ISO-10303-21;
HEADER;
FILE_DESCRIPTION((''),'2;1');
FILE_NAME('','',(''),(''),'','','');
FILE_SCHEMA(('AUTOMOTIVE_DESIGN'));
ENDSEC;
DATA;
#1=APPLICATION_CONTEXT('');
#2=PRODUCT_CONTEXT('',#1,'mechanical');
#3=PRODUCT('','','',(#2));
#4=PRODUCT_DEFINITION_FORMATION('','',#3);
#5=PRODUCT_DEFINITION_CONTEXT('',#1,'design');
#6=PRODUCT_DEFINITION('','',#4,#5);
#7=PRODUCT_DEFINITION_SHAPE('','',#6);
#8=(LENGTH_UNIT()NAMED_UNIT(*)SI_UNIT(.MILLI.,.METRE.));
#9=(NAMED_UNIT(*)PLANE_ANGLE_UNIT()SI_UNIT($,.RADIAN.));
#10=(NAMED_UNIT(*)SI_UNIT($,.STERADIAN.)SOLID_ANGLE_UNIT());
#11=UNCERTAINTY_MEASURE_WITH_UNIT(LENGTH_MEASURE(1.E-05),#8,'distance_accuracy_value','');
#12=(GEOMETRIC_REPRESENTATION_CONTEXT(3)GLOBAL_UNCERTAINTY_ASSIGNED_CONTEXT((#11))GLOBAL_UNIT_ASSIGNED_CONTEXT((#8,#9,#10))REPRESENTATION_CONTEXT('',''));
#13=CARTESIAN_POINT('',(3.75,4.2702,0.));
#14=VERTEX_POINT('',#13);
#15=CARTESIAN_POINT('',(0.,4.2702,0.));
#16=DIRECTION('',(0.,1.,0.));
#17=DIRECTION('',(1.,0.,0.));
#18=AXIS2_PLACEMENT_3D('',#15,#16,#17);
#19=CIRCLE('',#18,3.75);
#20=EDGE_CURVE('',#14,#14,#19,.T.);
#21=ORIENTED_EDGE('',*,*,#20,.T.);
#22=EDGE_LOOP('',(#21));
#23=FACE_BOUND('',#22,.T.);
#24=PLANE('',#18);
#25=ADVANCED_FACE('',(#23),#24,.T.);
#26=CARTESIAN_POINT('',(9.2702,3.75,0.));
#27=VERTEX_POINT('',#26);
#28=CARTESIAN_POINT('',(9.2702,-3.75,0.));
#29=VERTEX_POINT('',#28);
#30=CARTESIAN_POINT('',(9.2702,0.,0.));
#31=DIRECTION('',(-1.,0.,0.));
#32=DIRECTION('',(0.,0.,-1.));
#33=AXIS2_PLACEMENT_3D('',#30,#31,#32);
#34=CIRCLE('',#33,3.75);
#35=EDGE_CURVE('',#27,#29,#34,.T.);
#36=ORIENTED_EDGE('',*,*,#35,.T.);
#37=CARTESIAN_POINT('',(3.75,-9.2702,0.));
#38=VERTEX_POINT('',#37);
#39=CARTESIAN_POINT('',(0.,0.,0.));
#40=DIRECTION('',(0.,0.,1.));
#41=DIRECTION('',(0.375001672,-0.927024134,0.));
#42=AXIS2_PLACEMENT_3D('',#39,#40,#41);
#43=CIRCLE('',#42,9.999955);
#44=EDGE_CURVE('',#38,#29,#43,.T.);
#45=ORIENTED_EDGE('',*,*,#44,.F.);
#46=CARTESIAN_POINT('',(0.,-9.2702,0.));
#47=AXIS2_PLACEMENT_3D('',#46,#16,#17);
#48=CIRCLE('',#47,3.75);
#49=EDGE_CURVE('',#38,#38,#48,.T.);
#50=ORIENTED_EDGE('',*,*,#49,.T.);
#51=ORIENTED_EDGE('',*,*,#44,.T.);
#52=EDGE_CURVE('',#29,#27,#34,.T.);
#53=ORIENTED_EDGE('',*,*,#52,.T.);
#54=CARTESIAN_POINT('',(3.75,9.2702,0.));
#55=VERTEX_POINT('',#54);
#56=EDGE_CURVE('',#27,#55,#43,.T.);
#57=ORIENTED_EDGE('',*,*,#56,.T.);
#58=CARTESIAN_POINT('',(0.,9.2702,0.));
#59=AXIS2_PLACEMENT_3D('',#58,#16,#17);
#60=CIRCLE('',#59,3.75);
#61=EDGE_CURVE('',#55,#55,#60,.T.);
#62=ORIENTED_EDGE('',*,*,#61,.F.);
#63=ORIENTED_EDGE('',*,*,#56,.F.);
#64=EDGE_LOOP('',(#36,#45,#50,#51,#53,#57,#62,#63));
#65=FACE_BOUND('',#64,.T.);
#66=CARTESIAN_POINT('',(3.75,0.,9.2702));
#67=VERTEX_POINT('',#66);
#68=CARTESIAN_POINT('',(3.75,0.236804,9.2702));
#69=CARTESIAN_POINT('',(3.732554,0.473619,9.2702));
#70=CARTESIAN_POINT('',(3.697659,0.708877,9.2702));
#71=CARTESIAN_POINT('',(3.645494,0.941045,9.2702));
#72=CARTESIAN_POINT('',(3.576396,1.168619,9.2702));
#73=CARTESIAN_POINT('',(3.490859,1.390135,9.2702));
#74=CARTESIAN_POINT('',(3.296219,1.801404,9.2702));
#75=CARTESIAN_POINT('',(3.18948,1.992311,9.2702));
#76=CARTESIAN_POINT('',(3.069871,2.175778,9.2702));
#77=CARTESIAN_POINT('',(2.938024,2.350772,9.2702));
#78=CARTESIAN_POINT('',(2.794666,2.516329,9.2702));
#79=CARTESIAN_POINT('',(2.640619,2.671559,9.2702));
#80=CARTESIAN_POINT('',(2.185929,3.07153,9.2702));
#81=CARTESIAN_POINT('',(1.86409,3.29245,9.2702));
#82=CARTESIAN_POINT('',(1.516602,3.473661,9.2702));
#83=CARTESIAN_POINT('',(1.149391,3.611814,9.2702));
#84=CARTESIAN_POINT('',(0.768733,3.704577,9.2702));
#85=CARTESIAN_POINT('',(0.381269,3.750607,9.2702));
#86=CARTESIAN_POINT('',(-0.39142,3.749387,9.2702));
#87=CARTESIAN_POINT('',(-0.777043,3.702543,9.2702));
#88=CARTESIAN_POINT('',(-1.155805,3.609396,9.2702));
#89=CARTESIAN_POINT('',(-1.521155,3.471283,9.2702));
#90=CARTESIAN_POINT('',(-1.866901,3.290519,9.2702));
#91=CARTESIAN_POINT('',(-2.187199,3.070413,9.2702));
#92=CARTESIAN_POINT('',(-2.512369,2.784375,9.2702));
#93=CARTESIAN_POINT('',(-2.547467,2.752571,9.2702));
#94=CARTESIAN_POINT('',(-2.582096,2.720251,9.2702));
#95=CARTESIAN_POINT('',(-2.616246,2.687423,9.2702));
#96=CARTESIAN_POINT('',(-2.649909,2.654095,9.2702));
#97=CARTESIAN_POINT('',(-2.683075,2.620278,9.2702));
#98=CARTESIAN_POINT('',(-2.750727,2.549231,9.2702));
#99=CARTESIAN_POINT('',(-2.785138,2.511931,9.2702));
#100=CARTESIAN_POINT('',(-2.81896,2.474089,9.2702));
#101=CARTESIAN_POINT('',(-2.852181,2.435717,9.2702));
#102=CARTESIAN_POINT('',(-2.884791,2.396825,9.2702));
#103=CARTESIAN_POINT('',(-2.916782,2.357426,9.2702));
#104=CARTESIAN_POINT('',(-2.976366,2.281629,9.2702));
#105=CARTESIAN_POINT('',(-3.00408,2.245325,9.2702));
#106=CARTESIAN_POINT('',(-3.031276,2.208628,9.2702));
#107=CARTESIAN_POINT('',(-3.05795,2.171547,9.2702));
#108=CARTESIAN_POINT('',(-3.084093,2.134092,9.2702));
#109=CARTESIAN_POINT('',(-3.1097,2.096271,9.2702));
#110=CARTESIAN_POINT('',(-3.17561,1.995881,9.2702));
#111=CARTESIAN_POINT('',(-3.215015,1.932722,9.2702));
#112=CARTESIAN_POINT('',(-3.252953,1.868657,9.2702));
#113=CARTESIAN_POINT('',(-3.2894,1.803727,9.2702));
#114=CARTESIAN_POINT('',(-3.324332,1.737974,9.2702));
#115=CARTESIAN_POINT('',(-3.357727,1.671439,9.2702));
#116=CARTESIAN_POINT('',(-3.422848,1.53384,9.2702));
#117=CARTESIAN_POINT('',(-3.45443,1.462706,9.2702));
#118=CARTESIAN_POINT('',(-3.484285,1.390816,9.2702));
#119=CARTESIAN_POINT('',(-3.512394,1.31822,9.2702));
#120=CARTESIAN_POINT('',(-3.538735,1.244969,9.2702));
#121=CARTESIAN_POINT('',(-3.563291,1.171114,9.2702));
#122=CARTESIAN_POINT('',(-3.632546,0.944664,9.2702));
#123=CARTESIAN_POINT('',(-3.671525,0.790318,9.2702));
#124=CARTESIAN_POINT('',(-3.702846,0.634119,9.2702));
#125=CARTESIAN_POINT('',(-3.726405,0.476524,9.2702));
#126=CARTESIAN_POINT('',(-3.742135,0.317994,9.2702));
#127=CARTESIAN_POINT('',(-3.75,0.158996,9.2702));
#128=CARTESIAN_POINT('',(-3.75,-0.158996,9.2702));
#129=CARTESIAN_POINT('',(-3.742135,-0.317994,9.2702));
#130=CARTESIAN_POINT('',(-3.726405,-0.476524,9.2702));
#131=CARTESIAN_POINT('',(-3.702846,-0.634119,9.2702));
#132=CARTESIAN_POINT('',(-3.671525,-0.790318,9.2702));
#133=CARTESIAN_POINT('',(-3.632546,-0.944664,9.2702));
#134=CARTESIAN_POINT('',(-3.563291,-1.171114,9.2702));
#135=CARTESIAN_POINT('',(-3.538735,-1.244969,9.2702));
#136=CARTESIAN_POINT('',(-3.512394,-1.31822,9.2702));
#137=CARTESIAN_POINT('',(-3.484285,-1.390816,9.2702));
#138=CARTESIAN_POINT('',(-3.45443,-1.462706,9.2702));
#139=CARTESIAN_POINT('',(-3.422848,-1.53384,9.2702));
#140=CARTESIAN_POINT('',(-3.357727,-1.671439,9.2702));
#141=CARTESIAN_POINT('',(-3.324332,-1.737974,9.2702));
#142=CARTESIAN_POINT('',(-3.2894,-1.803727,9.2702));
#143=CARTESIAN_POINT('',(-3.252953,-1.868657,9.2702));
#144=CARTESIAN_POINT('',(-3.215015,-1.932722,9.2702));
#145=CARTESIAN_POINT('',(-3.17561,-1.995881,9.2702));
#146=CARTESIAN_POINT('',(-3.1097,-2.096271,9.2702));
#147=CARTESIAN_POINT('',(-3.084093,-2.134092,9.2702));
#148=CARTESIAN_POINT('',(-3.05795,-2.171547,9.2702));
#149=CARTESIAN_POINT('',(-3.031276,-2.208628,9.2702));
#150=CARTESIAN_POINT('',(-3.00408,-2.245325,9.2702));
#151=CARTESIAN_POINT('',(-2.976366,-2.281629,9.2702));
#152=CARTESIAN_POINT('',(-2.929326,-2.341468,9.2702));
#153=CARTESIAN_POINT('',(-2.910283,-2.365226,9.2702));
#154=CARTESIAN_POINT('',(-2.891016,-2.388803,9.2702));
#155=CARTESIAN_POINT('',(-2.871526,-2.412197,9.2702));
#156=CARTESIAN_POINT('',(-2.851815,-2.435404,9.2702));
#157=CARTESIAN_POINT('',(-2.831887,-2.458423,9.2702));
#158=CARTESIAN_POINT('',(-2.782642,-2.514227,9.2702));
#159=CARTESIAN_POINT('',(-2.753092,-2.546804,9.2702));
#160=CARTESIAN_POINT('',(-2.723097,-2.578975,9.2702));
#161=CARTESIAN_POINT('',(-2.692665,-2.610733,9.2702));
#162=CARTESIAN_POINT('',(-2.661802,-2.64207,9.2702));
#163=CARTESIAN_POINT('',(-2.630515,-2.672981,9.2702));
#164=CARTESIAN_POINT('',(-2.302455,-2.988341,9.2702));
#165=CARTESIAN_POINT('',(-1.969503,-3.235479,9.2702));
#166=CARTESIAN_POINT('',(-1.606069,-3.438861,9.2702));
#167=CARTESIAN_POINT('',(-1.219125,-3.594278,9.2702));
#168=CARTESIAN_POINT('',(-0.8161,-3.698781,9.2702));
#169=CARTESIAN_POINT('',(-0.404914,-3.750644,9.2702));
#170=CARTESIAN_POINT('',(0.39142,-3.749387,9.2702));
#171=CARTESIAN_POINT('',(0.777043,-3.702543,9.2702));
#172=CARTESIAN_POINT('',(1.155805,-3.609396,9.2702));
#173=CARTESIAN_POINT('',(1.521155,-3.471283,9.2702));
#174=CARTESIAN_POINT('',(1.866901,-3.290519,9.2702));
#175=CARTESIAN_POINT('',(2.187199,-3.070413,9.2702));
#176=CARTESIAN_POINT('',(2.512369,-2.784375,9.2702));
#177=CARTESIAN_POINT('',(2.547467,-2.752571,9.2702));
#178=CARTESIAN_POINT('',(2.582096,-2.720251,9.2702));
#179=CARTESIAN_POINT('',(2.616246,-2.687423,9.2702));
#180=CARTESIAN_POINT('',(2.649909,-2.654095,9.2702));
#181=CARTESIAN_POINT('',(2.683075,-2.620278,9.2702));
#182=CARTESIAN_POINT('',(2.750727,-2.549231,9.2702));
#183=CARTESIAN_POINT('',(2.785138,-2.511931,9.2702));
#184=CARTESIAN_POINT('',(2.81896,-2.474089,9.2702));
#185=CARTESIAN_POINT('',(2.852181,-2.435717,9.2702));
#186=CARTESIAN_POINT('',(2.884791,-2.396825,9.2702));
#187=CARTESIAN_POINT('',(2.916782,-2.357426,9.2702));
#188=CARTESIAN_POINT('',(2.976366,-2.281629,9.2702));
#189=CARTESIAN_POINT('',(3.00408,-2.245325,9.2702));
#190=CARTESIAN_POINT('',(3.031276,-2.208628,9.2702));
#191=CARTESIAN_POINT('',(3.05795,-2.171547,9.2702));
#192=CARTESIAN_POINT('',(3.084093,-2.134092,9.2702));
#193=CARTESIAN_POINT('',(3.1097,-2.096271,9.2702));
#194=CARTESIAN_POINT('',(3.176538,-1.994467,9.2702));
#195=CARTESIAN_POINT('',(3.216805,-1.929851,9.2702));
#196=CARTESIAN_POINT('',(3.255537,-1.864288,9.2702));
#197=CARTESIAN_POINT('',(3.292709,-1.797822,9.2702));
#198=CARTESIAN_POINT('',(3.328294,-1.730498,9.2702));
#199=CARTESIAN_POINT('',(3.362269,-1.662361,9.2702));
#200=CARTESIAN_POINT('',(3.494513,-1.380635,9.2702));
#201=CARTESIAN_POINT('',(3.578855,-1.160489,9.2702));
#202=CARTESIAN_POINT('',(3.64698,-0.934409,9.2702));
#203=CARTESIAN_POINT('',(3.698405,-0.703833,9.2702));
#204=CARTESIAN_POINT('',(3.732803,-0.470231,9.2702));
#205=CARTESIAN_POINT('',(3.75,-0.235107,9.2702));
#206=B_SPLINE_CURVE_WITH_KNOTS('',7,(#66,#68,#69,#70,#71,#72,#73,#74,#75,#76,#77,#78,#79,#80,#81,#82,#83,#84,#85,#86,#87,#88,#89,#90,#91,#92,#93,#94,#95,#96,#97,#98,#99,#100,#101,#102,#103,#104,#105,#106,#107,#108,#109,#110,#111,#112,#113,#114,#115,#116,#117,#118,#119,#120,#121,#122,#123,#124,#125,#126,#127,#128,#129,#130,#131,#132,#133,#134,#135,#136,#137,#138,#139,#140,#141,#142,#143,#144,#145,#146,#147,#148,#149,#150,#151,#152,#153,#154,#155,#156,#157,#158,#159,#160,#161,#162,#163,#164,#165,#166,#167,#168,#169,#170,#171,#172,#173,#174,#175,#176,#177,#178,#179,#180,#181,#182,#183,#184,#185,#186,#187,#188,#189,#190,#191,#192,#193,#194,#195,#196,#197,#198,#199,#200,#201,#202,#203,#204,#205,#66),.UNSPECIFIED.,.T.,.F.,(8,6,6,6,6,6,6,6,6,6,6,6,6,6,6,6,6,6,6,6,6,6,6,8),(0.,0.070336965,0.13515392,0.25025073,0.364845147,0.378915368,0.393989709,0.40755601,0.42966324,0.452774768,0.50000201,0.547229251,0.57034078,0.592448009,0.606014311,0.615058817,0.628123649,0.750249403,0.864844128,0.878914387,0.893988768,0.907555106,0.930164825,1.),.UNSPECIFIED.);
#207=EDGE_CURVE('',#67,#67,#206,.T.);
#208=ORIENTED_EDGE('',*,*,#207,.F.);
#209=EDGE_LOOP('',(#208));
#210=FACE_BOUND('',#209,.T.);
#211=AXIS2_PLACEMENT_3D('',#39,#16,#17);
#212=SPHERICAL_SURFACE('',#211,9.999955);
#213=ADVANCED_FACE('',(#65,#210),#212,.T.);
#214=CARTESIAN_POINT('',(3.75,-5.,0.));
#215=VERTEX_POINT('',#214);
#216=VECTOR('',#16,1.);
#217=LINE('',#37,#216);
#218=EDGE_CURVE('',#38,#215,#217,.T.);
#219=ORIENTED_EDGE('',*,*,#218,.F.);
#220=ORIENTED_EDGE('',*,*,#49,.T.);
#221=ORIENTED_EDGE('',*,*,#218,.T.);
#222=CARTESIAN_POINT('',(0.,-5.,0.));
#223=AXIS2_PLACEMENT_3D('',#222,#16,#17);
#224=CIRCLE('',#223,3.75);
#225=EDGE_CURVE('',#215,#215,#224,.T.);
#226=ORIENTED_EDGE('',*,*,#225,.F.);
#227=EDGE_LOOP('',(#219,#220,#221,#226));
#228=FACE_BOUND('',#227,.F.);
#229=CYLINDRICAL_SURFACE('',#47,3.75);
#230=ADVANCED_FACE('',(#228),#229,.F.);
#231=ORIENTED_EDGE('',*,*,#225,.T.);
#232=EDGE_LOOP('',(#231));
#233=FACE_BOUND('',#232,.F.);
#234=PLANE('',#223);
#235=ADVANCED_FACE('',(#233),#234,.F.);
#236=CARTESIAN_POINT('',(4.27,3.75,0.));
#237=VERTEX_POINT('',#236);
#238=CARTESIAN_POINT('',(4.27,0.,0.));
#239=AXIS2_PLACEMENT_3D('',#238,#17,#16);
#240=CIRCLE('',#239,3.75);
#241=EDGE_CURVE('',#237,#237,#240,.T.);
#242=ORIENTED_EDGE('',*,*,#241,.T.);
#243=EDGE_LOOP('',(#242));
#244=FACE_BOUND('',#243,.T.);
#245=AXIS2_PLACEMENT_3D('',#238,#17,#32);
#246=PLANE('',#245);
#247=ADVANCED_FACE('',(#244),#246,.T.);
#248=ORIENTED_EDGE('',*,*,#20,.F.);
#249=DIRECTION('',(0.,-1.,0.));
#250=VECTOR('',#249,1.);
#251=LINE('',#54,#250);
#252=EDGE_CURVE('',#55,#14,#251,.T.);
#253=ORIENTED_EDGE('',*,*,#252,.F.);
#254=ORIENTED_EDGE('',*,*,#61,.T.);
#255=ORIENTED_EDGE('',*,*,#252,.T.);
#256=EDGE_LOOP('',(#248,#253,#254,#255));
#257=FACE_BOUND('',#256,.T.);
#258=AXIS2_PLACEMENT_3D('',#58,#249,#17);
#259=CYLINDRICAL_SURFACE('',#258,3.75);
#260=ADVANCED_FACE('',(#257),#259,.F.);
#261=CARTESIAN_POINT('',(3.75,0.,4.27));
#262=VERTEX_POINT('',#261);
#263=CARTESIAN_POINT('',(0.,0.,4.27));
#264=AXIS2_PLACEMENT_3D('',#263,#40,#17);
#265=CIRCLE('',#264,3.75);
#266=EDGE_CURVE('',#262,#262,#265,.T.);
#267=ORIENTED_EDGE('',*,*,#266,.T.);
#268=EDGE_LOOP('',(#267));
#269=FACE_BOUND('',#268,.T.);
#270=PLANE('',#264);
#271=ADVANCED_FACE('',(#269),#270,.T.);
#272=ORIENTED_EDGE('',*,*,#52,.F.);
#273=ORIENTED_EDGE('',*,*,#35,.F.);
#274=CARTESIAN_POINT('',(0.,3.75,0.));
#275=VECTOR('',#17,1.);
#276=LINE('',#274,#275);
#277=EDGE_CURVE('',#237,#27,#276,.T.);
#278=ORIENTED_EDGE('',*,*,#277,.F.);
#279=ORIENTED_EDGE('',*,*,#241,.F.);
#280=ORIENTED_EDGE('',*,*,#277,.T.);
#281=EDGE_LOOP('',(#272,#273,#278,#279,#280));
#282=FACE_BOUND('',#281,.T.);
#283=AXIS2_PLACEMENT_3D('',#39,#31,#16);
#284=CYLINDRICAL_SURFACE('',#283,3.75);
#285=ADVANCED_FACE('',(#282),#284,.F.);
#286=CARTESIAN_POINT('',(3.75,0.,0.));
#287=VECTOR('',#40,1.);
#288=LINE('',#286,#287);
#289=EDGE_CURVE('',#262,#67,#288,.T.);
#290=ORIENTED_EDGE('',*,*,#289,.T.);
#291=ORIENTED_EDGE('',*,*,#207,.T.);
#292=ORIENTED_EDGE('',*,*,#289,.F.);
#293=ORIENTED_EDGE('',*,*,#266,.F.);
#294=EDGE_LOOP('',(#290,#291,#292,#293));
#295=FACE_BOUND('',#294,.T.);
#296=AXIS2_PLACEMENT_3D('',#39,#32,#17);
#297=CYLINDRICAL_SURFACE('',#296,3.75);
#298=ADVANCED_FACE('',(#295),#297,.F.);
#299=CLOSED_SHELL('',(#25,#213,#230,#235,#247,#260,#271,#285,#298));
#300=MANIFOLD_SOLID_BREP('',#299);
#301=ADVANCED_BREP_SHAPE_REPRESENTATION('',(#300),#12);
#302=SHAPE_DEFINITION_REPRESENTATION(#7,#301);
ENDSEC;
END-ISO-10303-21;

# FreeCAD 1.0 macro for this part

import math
import FreeCAD as App
import Part
import Sketcher
from FreeCAD import Vector

doc = App.newDocument("Part")
params = doc.addObject("Spreadsheet::Sheet", "Params")
for row, (alias, value) in enumerate([
    ("sketch1_radius", "10 mm"),
    ("sketch1_height", "5 mm"),
    ("sketch1_width", "3.75 mm"),
    ("revolution_angle", "360 deg"),
    ("sketch2_diameter", "7.5 mm"),
    ("pocket1_length", "10 mm"),
    ("sketch3_diameter", "7.5 mm"),
    ("pad1_length", "4.27 mm"),
    ("sketch4_diameter", "7.5 mm"),
    ("pocket2_length", "10 mm"),
    ("sketch5_diameter", "7.5 mm"),
    ("pad2_length", "4.27 mm"),
], start=1):
    params.set(f"A{row}", alias)
    params.set(f"B{row}", "=" + value)
    params.setAlias(f"B{row}", alias)

body = doc.addObject("PartDesign::Body", "Body")

# Sketch on XY plane
sketch1 = body.newObject("Sketcher::SketchObject", "Sketch")
sketch1.AttachmentSupport = (doc.getObject("XY_Plane"), [""])
sketch1.MapMode = "FlatFace"
sketch1.addGeometry([
    Part.LineSegment(Vector(0, 4.3, 0), Vector(0, -5, 0)),  # 0
    Part.LineSegment(Vector(0, -5, 0), Vector(3.8, -5, 0)),  # 1
    Part.LineSegment(Vector(3.8, -5, 0), Vector(3.8, -9.3, 0)),  # 2
    Part.ArcOfCircle(Part.Circle(Vector(0, 0, 0), Vector(0, 0, 1), 10), math.radians(-68), math.radians(68)),  # 3
    Part.LineSegment(Vector(3.8, 9.3, 0), Vector(3.8, 4.3, 0)),  # 4
    Part.LineSegment(Vector(3.8, 4.3, 0), Vector(0, 4.3, 0)),  # 5
], False)
sketch1.addConstraint([
    Sketcher.Constraint("Coincident", 0, 2, 1, 1),
    Sketcher.Constraint("Coincident", 1, 2, 2, 1),
    Sketcher.Constraint("Coincident", 2, 2, 3, 1),
    Sketcher.Constraint("Coincident", 3, 2, 4, 1),
    Sketcher.Constraint("Coincident", 4, 2, 5, 1),
    Sketcher.Constraint("Coincident", 5, 2, 0, 1),
    Sketcher.Constraint("Vertical", 0),
    Sketcher.Constraint("Horizontal", 1),
    Sketcher.Constraint("Vertical", 2),
    Sketcher.Constraint("Vertical", 4),
    Sketcher.Constraint("Horizontal", 5),
    Sketcher.Constraint("Coincident", 3, 3, -1, 1),
    Sketcher.Constraint("PointOnObject", 0, 2, -2),
    Sketcher.Constraint("Vertical", 2, 2, 3, 2),
    Sketcher.Constraint("Radius", 3, 10.0),
    Sketcher.Constraint("DistanceY", 4, 2, 4, 1, 5.0),
    Sketcher.Constraint("DistanceY", 0, 2, -1, 1, 5.0),
    Sketcher.Constraint("DistanceX", 1, 1, 1, 2, 3.75),
])
sketch1.setExpression("Constraints[14]", "Params.sketch1_radius")
sketch1.setExpression("Constraints[15]", "Params.sketch1_height")
sketch1.setExpression("Constraints[17]", "Params.sketch1_width")
revolution = body.newObject("PartDesign::Revolution", "Revolution")
revolution.Profile = sketch1
revolution.ReferenceAxis = (sketch1, ["V_Axis"])
revolution.setExpression("Angle", "Params.revolution_angle")

# Sketch on YZ plane
sketch2 = body.newObject("Sketcher::SketchObject", "Sketch001")
sketch2.AttachmentSupport = (doc.getObject("YZ_Plane"), [""])
sketch2.MapMode = "FlatFace"
sketch2.addGeometry(Part.Circle(Vector(0, 0, 0), Vector(0, 0, 1), 3.8), False)
sketch2.addConstraint([
    Sketcher.Constraint("Coincident", 0, 3, -1, 1),
    Sketcher.Constraint("Diameter", 0, 7.5),
])
sketch2.setExpression("Constraints[1]", "Params.sketch2_diameter")
pocket1 = body.newObject("PartDesign::Pocket", "Pocket")
pocket1.Profile = sketch2
pocket1.setExpression("Length", "Params.pocket1_length")
pocket1.Reversed = True

# Sketch on YZ plane
sketch3 = body.newObject("Sketcher::SketchObject", "Sketch002")
sketch3.AttachmentSupport = (doc.getObject("YZ_Plane"), [""])
sketch3.MapMode = "FlatFace"
sketch3.addGeometry(Part.Circle(Vector(0, 0, 0), Vector(0, 0, 1), 3.8), False)
sketch3.addConstraint([
    Sketcher.Constraint("Coincident", 0, 3, -1, 1),
    Sketcher.Constraint("Diameter", 0, 7.5),
])
sketch3.setExpression("Constraints[1]", "Params.sketch3_diameter")
pad1 = body.newObject("PartDesign::Pad", "Pad")
pad1.Profile = sketch3
pad1.setExpression("Length", "Params.pad1_length")

# Sketch on XY plane
sketch4 = body.newObject("Sketcher::SketchObject", "Sketch003")
sketch4.AttachmentSupport = (doc.getObject("XY_Plane"), [""])
sketch4.MapMode = "FlatFace"
sketch4.addGeometry(Part.Circle(Vector(0, 0, 0), Vector(0, 0, 1), 3.8), False)
sketch4.addConstraint([
    Sketcher.Constraint("Coincident", 0, 3, -1, 1),
    Sketcher.Constraint("Diameter", 0, 7.5),
])
sketch4.setExpression("Constraints[1]", "Params.sketch4_diameter")
pocket2 = body.newObject("PartDesign::Pocket", "Pocket001")
pocket2.Profile = sketch4
pocket2.setExpression("Length", "Params.pocket2_length")
pocket2.Reversed = True

# Sketch on XY plane
sketch5 = body.newObject("Sketcher::SketchObject", "Sketch004")
sketch5.AttachmentSupport = (doc.getObject("XY_Plane"), [""])
sketch5.MapMode = "FlatFace"
sketch5.addGeometry(Part.Circle(Vector(0, 0, 0), Vector(0, 0, 1), 3.8), False)
sketch5.addConstraint([
    Sketcher.Constraint("Coincident", 0, 3, -1, 1),
    Sketcher.Constraint("Diameter", 0, 7.5),
])
sketch5.setExpression("Constraints[1]", "Params.sketch5_diameter")
pad2 = body.newObject("PartDesign::Pad", "Pad001")
pad2.Profile = sketch5
pad2.setExpression("Length", "Params.pad2_length")

doc.recompute()
